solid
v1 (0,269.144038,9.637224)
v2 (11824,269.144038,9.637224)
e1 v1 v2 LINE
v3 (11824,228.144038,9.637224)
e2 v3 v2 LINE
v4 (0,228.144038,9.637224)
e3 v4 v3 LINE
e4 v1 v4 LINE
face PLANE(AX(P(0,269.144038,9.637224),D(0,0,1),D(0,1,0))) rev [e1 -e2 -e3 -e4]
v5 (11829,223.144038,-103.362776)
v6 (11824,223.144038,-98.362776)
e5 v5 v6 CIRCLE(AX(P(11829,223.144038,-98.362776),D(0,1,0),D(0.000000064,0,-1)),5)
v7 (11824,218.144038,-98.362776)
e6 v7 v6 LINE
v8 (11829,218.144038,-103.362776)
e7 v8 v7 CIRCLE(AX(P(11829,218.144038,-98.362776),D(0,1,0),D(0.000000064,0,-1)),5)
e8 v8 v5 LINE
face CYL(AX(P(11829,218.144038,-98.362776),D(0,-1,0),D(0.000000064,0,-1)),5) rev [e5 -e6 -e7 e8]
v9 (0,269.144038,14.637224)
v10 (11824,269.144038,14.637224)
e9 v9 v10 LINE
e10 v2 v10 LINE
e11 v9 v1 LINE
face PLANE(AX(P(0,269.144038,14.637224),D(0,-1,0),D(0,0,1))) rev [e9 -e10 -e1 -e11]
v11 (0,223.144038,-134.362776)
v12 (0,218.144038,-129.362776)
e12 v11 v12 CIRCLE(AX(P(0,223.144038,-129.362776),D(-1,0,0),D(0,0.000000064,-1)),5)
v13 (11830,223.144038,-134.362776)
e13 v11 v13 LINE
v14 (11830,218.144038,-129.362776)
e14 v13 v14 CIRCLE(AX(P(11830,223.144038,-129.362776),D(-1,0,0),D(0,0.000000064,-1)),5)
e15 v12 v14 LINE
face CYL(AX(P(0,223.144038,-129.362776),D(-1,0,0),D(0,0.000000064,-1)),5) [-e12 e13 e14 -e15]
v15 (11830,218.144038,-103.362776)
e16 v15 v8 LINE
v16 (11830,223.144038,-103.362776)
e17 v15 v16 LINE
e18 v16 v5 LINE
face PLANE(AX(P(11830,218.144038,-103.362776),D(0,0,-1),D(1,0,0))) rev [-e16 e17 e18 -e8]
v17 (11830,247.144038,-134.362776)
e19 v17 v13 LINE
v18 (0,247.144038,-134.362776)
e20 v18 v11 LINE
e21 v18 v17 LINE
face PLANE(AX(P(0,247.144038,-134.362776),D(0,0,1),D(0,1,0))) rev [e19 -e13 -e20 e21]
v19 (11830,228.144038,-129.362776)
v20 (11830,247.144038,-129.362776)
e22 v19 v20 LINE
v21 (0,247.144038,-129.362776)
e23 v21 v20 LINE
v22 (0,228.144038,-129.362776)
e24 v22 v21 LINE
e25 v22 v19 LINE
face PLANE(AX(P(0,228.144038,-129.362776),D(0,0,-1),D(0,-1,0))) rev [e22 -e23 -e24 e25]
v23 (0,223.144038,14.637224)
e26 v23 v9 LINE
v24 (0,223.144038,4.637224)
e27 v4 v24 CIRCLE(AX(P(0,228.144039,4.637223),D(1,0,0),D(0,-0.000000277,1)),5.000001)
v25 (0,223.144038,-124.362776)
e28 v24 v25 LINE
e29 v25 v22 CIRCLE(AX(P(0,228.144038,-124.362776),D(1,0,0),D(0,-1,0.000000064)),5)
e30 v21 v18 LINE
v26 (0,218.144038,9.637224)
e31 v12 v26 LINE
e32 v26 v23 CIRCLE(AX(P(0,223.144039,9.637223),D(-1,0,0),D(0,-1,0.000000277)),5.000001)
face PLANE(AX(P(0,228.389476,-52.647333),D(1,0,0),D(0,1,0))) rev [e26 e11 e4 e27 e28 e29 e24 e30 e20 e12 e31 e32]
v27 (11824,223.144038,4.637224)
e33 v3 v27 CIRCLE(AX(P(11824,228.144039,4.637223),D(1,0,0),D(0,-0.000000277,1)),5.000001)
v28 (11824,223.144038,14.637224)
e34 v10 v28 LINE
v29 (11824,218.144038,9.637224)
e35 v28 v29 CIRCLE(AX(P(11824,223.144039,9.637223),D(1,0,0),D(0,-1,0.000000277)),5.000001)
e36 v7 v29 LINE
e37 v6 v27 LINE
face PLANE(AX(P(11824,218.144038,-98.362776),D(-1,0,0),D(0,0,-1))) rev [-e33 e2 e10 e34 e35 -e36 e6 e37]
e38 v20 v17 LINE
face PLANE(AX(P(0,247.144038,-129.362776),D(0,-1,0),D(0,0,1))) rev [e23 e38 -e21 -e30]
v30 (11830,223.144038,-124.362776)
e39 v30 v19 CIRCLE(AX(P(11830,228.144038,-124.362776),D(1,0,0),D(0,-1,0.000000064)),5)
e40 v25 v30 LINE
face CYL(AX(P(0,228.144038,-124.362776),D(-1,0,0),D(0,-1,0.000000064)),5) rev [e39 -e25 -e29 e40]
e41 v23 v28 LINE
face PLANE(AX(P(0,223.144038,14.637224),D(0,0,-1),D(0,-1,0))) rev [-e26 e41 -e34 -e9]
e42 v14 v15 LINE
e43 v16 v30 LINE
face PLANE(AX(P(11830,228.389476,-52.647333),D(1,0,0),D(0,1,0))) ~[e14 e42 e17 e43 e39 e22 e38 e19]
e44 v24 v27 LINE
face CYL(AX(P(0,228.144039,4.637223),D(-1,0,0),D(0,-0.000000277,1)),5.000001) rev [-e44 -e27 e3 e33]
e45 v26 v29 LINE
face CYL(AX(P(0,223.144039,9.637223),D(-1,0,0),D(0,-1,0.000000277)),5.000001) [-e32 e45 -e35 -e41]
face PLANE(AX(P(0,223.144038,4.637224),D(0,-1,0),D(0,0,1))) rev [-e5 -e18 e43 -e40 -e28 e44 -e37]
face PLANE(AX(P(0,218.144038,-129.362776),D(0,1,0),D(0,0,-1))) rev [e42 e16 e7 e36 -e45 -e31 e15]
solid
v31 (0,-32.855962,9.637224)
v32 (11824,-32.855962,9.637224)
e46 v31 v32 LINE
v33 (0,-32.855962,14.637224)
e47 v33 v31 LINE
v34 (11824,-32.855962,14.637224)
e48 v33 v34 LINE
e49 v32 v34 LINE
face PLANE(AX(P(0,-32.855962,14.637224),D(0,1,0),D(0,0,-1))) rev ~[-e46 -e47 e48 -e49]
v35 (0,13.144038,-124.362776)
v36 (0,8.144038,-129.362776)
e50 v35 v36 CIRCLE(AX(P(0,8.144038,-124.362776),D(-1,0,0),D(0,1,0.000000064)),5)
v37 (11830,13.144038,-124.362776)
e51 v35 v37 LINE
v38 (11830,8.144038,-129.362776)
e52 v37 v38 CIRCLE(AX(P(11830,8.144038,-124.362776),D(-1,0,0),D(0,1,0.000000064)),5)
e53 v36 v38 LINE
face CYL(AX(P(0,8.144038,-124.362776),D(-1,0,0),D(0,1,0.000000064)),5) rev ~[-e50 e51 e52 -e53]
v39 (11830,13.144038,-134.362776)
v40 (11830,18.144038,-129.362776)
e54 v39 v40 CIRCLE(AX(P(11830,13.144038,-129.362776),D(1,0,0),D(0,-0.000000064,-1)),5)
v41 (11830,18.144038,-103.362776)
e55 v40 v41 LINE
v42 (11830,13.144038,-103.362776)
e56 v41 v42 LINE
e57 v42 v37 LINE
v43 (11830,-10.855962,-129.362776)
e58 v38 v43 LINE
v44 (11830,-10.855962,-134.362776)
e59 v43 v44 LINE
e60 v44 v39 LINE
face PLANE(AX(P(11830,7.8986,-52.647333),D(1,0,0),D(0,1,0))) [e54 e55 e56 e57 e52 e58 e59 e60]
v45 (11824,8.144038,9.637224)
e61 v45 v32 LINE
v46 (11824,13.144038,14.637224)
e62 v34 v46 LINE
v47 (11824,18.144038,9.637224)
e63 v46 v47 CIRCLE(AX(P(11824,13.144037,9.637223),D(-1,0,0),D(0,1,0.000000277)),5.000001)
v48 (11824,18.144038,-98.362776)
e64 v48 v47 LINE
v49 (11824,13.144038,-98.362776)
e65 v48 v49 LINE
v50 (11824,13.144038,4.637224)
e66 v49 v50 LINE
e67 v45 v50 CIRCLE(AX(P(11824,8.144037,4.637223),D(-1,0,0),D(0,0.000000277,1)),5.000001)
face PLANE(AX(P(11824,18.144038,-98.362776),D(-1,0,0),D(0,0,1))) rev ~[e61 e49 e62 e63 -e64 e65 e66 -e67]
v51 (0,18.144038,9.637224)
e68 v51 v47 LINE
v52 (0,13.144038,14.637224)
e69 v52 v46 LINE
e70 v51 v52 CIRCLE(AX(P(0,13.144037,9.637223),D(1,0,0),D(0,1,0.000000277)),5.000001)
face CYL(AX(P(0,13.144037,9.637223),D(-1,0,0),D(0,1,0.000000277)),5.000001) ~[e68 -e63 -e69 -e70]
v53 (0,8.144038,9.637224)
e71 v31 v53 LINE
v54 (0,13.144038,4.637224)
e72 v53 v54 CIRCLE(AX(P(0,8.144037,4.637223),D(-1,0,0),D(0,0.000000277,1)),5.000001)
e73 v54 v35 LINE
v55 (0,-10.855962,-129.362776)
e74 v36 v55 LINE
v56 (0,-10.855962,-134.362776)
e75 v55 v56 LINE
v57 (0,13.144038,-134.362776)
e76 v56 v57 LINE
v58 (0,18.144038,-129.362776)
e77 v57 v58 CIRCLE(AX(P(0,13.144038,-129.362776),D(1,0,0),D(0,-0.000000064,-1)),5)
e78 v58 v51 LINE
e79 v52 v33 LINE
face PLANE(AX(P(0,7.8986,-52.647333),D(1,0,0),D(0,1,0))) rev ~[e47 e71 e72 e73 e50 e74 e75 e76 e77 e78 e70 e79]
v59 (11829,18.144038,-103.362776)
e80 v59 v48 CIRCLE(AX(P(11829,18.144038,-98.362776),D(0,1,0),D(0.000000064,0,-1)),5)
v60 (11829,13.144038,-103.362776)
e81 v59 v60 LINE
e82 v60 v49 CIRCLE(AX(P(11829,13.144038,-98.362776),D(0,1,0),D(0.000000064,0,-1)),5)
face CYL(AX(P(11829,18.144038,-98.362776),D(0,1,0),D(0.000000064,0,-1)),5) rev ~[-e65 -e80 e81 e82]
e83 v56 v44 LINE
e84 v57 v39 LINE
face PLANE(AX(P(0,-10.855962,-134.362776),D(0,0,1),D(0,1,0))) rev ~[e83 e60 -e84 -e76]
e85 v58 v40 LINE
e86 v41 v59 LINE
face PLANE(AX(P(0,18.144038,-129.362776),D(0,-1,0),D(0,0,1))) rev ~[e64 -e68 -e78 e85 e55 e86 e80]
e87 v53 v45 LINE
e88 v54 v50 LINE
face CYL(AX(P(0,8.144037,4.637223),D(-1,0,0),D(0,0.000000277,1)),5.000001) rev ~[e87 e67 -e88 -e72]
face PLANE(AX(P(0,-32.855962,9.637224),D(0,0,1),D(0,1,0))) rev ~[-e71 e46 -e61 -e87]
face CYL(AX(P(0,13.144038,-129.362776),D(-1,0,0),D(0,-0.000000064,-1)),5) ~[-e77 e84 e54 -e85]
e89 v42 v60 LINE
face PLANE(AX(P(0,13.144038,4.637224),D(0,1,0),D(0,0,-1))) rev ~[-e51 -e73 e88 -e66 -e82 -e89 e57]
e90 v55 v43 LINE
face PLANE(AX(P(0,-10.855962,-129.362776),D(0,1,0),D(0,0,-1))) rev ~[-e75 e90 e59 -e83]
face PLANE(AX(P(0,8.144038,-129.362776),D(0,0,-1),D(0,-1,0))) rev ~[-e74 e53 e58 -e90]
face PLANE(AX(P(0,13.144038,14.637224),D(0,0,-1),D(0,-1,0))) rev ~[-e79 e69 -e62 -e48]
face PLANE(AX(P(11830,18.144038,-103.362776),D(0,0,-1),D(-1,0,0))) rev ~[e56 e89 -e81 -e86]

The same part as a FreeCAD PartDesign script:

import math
import FreeCAD as App
import Part
import Sketcher

V = App.Vector

doc = App.newDocument("Part")
body = doc.addObject("PartDesign::Body", "Body")

# Sketch on YZ plane
sketch1 = doc.addObject("Sketcher::SketchObject", "Sketch")
body.addObject(sketch1)
sketch1.AttachmentSupport = (doc.YZ_Plane, [""])
sketch1.MapMode = "FlatFace"
sketch1.addGeometry([
    Part.LineSegment(V(13.1, 14.6, 0), V(-32.9, 14.6, 0)),  # 0
    Part.LineSegment(V(-32.9, 14.6, 0), V(-32.9, 9.6, 0)),  # 1
    Part.LineSegment(V(-32.9, 9.6, 0), V(8.1, 9.6, 0)),  # 2
    Part.ArcOfCircle(Part.Circle(V(8.1, 4.6, 0), V(0, 0, 1), 5), math.radians(0), math.radians(90)),  # 3
    Part.LineSegment(V(13.1, 4.6, 0), V(13.1, -124.4, 0)),  # 4
    Part.ArcOfCircle(Part.Circle(V(8.1, -124.4, 0), V(0, 0, 1), 5), math.radians(-90), math.radians(0)),  # 5
    Part.LineSegment(V(8.1, -129.4, 0), V(-10.9, -129.4, 0)),  # 6
    Part.LineSegment(V(-10.9, -129.4, 0), V(-10.9, -134.4, 0)),  # 7
    Part.LineSegment(V(-10.9, -134.4, 0), V(13.1, -134.4, 0)),  # 8
    Part.ArcOfCircle(Part.Circle(V(13.1, -129.4, 0), V(0, 0, 1), 5), math.radians(-90), math.radians(0)),  # 9
    Part.LineSegment(V(18.1, -129.4, 0), V(18.1, 9.6, 0)),  # 10
    Part.ArcOfCircle(Part.Circle(V(13.1, 9.6, 0), V(0, 0, 1), 5), math.radians(0), math.radians(90)),  # 11
], False)
sketch1.addConstraint([
    Sketcher.Constraint("Coincident", 0, 2, 1, 1),
    Sketcher.Constraint("Coincident", 1, 2, 2, 1),
    Sketcher.Constraint("Tangent", 2, 2, 3, 2),
    Sketcher.Constraint("Tangent", 3, 1, 4, 1),
    Sketcher.Constraint("Tangent", 4, 2, 5, 2),
    Sketcher.Constraint("Tangent", 5, 1, 6, 1),
    Sketcher.Constraint("Coincident", 6, 2, 7, 1),
    Sketcher.Constraint("Coincident", 7, 2, 8, 1),
    Sketcher.Constraint("Tangent", 8, 2, 9, 1),
    Sketcher.Constraint("Tangent", 9, 2, 10, 1),
    Sketcher.Constraint("Tangent", 10, 2, 11, 1),
    Sketcher.Constraint("Tangent", 11, 2, 0, 1),
    Sketcher.Constraint("Horizontal", 0),
    Sketcher.Constraint("Vertical", 1),
    Sketcher.Constraint("Horizontal", 2),
    Sketcher.Constraint("Vertical", 4),
    Sketcher.Constraint("Horizontal", 6),
    Sketcher.Constraint("Vertical", 7),
    Sketcher.Constraint("Horizontal", 8),
    Sketcher.Constraint("Vertical", 10),
    Sketcher.Constraint("Equal", 3, 5),
    Sketcher.Constraint("Equal", 5, 9),
    Sketcher.Constraint("Equal", 9, 11),
    Sketcher.Constraint("Horizontal", 11, 3, 1, 2),
    Sketcher.Constraint("Horizontal", 9, 3, 5, 1),
    Sketcher.Constraint("Vertical", 11, 3, 3, 1),
    Sketcher.Constraint("Radius", 3, 5.000001),
    Sketcher.Constraint("DistanceX", 0, 2, 0, 1, 46.0),
    Sketcher.Constraint("DistanceX", 6, 2, 6, 1, 19.0),
    Sketcher.Constraint("DistanceY", 4, 2, 4, 1, 129.0),
    Sketcher.Constraint("DistanceX", -1, 1, 5, 3, 8.144038),
    Sketcher.Constraint("DistanceY", -1, 1, 3, 3, 4.637223),
])
pad1 = doc.addObject("PartDesign::Pad", "Pad")
body.addObject(pad1)
pad1.Profile = sketch1
pad1.Length = 11830

# Sketch on XZ plane
sketch2 = doc.addObject("Sketcher::SketchObject", "Sketch001")
body.addObject(sketch2)
sketch2.AttachmentSupport = (doc.XZ_Plane, [""])
sketch2.MapMode = "FlatFace"
sketch2.AttachmentOffset = App.Placement(V(0, 0, -18.144038), App.Rotation())
sketch2.addGeometry([
    Part.LineSegment(V(11830, -103.4, 0), V(11829, -103.4, 0)),  # 0
    Part.ArcOfCircle(Part.Circle(V(11829, -98.4, 0), V(0, 0, 1), 5), math.radians(180), math.radians(270)),  # 1
    Part.LineSegment(V(11824, -98.4, 0), V(11824, 20.9, 0)),  # 2
    Part.LineSegment(V(11824, 20.9, 0), V(11830, 20.9, 0)),  # 3
    Part.LineSegment(V(11830, 20.9, 0), V(11830, -103.4, 0)),  # 4
], False)
sketch2.addConstraint([
    Sketcher.Constraint("Tangent", 0, 2, 1, 2),
    Sketcher.Constraint("Tangent", 1, 1, 2, 1),
    Sketcher.Constraint("Coincident", 2, 2, 3, 1),
    Sketcher.Constraint("Coincident", 3, 2, 4, 1),
    Sketcher.Constraint("Coincident", 4, 2, 0, 1),
    Sketcher.Constraint("Horizontal", 0),
    Sketcher.Constraint("Vertical", 2),
    Sketcher.Constraint("Horizontal", 3),
    Sketcher.Constraint("Vertical", 4),
    Sketcher.Constraint("Radius", 1, 5.0),
    Sketcher.Constraint("DistanceX", 0, 2, 0, 1, 1.0),
    Sketcher.Constraint("DistanceX", -1, 1, 1, 3, 11829.0),
    Sketcher.Constraint("DistanceY", -1, 1, 2, 2, 20.8505),
    Sketcher.Constraint("DistanceY", 2, 1, 2, 2, 119.213276),
])
pocket1 = doc.addObject("PartDesign::Pocket", "Pocket")
body.addObject(pocket1)
pocket1.Profile = sketch2
pocket1.Length = 51
pocket1.Reversed = True
body2 = doc.addObject("PartDesign::Body", "Body001")
doc.recompute()

mirroring = doc.addObject("Part::Mirroring", "Mirroring")
mirroring.Source = body
mirroring.Base = V(5912.580681, 118.144038, -59.868277)
mirroring.Normal = V(0, 1, 0)
body2.BaseFeature = mirroring
doc.recompute()
mirroring.Visibility = False

doc.recompute()
